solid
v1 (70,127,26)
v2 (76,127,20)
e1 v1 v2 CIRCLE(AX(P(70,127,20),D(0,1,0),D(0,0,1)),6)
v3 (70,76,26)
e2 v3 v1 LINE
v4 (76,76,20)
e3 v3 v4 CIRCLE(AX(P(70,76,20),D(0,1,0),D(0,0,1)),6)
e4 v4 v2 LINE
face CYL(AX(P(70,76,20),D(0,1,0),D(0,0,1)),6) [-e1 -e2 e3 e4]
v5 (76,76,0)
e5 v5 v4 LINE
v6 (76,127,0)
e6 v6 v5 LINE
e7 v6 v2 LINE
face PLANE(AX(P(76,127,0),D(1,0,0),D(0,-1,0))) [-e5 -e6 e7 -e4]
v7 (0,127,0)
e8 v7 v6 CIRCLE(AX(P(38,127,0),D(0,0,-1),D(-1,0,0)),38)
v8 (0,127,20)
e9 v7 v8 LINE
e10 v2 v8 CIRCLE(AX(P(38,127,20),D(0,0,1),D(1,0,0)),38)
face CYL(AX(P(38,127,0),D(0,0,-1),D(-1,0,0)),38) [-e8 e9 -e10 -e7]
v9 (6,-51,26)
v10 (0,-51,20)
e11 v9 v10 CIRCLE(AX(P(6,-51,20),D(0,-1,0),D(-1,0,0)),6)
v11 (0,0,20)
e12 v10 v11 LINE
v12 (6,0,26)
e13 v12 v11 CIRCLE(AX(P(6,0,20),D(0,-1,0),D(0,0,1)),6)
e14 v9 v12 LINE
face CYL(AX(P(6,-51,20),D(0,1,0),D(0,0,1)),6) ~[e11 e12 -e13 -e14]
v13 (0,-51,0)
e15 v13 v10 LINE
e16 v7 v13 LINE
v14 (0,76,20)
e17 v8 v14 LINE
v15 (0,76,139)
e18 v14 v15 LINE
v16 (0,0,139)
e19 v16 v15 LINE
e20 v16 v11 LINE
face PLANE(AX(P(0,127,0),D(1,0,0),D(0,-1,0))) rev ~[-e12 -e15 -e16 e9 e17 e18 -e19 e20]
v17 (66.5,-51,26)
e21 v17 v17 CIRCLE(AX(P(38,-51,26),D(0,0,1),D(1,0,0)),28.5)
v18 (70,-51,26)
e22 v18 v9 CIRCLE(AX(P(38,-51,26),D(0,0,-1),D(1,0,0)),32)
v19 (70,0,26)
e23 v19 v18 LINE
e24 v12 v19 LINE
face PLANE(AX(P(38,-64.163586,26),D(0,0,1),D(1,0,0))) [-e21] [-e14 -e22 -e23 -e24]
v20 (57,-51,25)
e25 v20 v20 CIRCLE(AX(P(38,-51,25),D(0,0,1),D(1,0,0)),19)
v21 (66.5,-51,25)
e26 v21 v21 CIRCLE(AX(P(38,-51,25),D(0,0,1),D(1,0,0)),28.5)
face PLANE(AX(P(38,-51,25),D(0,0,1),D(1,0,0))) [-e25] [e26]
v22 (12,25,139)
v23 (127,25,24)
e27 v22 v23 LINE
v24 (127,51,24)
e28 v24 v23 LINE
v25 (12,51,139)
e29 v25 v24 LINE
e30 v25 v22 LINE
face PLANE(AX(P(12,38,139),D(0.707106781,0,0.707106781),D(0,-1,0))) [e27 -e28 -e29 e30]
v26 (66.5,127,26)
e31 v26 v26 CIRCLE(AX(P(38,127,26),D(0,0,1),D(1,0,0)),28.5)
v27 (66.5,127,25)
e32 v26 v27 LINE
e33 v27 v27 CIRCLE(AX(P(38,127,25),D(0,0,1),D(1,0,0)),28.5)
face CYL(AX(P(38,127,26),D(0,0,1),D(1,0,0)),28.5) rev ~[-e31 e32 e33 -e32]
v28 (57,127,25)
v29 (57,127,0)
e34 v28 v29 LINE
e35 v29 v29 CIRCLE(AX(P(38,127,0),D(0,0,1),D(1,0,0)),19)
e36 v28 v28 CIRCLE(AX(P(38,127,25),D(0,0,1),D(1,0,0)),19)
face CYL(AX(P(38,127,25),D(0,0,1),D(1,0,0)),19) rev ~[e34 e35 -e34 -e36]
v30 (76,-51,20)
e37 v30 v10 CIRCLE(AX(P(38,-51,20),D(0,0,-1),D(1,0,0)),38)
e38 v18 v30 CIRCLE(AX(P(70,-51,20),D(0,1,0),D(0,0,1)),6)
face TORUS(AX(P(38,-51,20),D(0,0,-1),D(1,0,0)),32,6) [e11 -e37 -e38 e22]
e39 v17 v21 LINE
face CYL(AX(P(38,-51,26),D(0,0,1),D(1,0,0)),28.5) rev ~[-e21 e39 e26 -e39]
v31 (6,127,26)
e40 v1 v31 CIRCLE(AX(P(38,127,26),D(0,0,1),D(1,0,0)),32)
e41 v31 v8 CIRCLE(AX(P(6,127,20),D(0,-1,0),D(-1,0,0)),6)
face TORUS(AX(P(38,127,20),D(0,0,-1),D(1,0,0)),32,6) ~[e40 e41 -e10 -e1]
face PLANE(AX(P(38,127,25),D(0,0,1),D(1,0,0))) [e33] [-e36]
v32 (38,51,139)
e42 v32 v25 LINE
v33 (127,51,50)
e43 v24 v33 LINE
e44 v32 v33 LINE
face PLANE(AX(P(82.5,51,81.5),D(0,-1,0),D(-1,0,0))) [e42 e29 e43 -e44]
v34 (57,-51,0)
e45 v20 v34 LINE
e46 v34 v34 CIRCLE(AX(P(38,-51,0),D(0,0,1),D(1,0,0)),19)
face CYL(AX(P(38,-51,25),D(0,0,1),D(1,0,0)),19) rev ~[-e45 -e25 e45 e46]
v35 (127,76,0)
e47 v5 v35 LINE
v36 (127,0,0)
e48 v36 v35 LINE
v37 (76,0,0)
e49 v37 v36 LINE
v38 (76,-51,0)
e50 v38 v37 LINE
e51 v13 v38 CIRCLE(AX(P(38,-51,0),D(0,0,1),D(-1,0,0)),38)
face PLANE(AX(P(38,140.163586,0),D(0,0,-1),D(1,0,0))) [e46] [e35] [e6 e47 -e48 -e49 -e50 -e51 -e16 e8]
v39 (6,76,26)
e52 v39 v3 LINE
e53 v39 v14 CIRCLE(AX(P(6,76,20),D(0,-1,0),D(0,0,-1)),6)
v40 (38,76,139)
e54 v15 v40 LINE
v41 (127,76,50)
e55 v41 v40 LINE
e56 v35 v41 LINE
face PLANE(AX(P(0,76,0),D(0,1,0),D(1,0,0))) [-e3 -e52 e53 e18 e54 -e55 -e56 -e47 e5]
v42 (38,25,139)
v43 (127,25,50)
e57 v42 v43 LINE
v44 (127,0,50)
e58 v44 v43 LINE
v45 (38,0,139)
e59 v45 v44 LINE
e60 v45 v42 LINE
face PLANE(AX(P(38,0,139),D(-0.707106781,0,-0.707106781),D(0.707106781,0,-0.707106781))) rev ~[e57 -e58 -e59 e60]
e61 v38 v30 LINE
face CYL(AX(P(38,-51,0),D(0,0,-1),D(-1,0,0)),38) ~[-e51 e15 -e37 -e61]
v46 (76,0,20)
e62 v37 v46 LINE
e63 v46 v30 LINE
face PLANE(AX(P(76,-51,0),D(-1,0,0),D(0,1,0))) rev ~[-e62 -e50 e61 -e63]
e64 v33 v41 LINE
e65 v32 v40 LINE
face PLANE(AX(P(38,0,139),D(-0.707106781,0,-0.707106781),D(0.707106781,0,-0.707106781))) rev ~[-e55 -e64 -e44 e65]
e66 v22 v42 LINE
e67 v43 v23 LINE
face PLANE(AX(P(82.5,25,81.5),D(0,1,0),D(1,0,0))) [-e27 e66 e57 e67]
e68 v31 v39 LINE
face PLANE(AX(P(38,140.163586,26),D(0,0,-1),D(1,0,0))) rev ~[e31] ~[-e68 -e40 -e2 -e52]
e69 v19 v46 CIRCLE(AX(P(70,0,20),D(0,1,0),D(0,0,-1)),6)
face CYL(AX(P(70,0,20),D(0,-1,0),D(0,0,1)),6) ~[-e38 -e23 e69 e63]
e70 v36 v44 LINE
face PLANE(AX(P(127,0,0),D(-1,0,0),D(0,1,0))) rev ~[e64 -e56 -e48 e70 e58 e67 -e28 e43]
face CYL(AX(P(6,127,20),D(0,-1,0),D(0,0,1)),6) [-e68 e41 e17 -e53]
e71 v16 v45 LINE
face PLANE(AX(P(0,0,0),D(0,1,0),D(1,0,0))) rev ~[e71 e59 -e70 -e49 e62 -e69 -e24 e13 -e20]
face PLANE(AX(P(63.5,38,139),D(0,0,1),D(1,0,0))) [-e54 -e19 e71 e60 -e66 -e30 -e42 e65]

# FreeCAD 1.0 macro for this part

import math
import FreeCAD as App
import Part
import Sketcher
Q = App.Units.Quantity


def edges_at(feature, points):
    """Names of the edges that pass closest to the given points."""
    edges = feature.Shape.Edges
    near = lambda p: min(range(len(edges)), key=lambda i: edges[i].distToShape(Part.Vertex(*p))[0])
    return sorted({f"Edge{near(p) + 1}" for p in points})

doc = App.newDocument("Part")
params = doc.addObject("Spreadsheet::Sheet", "Params")
for row, (alias, value) in enumerate([
    ("sketch1_width", "127 mm"),
    ("sketch1_height", "76 mm"),
    ("pad1_length", "139 mm"),
    ("sketch2_width", "89 mm"),
    ("sketch3_width", "26 mm"),
    ("sketch5_radius", "38 mm"),
    ("sketch5_height", "51 mm"),
    ("pad2_length", "26 mm"),
    ("sketch6_radius", "38 mm"),
    ("sketch6_height", "51 mm"),
    ("pad3_length", "26 mm"),
    ("fillet_radius", "6 mm"),
    ("fillet2_radius", "6 mm"),
    ("sketch7_diameter", "57 mm"),
    ("pocket2_length", "1 mm"),
    ("sketch8_diameter", "38 mm"),
    ("sketch9_diameter", "57 mm"),
    ("pocket4_length", "1 mm"),
    ("sketch10_diameter", "38 mm"),
], start=1):
    params.set(f"A{row}", alias)
    params.set(f"B{row}", "=" + value)
    params.setAlias(f"B{row}", alias)

body = doc.addObject("PartDesign::Body", "Body")

# Sketch on XY plane
sketch1 = body.newObject("Sketcher::SketchObject", "Sketch")
sketch1.AttachmentSupport = (doc.getObject("XY_Plane"), [""])
sketch1.MapMode = "FlatFace"
sketch1.addGeometry([
    Part.LineSegment(App.Vector(0, 76, 0), App.Vector(0, 0, 0)),
    Part.LineSegment(App.Vector(0, 0, 0), App.Vector(127, 0, 0)),
    Part.LineSegment(App.Vector(127, 0, 0), App.Vector(127, 76, 0)),
    Part.LineSegment(App.Vector(127, 76, 0), App.Vector(0, 76, 0)),
], False)
sketch1.addConstraint([
    Sketcher.Constraint("Coincident", 0, 2, 1, 1),
    Sketcher.Constraint("Coincident", 1, 2, 2, 1),
    Sketcher.Constraint("Coincident", 2, 2, 3, 1),
    Sketcher.Constraint("Coincident", 3, 2, 0, 1),
    Sketcher.Constraint("Vertical", 0),
    Sketcher.Constraint("Horizontal", 1),
    Sketcher.Constraint("Vertical", 2),
    Sketcher.Constraint("Horizontal", 3),
    Sketcher.Constraint("Coincident", 0, 2, -1, 1),
    Sketcher.Constraint("DistanceX", 1, 1, 1, 2, Q("127 mm")),
    Sketcher.Constraint("DistanceY", 0, 2, 0, 1, Q("76 mm")),
])
sketch1.setExpression("Constraints[9]", "Params.sketch1_width")
sketch1.setExpression("Constraints[10]", "Params.sketch1_height")
pad1 = body.newObject("PartDesign::Pad", "Pad")
pad1.Profile = sketch1
pad1.setExpression("Length", "Params.pad1_length")

# Sketch on XZ plane
sketch2 = body.newObject("Sketcher::SketchObject", "Sketch001")
sketch2.AttachmentSupport = (doc.getObject("XZ_Plane"), [""])
sketch2.MapMode = "FlatFace"
sketch2.addGeometry([
    Part.LineSegment(App.Vector(127, 139, 0), App.Vector(38, 139, 0)),
    Part.LineSegment(App.Vector(38, 139, 0), App.Vector(127, 50, 0)),
    Part.LineSegment(App.Vector(127, 50, 0), App.Vector(127, 139, 0)),
], False)
sketch2.addConstraint([
    Sketcher.Constraint("Coincident", 0, 2, 1, 1),
    Sketcher.Constraint("Coincident", 1, 2, 2, 1),
    Sketcher.Constraint("Coincident", 2, 2, 0, 1),
    Sketcher.Constraint("Horizontal", 0),
    Sketcher.Constraint("Vertical", 2),
    Sketcher.Constraint("Equal", 0, 2),
    Sketcher.Constraint("DistanceX", 0, 2, 0, 1, Q("89 mm")),
    Sketcher.Constraint("DistanceX", -1, 1, 0, 2, Q("38 mm")),
    Sketcher.Constraint("DistanceY", -1, 1, 0, 2, Q("139 mm")),
])
sketch2.setExpression("Constraints[6]", "Params.sketch2_width")
pocket1 = body.newObject("PartDesign::Pocket", "Pocket")
pocket1.Profile = sketch2
pocket1.Type = "ThroughAll"

# Sketch on XY plane
sketch3 = body.newObject("Sketcher::SketchObject", "Sketch002")
sketch3.AttachmentSupport = (doc.getObject("XY_Plane"), [""])
sketch3.MapMode = "FlatFace"
sketch3.AttachmentOffset = App.Placement(App.Vector(0, 0, 139), App.Rotation())
sketch3.addGeometry([
    Part.LineSegment(App.Vector(12, 51, 0), App.Vector(12, 25, 0)),
    Part.LineSegment(App.Vector(12, 25, 0), App.Vector(38, 25, 0)),
    Part.LineSegment(App.Vector(38, 25, 0), App.Vector(38, 51, 0)),
    Part.LineSegment(App.Vector(38, 51, 0), App.Vector(12, 51, 0)),
], False)
sketch3.addConstraint([
    Sketcher.Constraint("Coincident", 0, 2, 1, 1),
    Sketcher.Constraint("Coincident", 1, 2, 2, 1),
    Sketcher.Constraint("Coincident", 2, 2, 3, 1),
    Sketcher.Constraint("Coincident", 3, 2, 0, 1),
    Sketcher.Constraint("Vertical", 0),
    Sketcher.Constraint("Horizontal", 1),
    Sketcher.Constraint("Vertical", 2),
    Sketcher.Constraint("Horizontal", 3),
    Sketcher.Constraint("Equal", 3, 0),
    Sketcher.Constraint("DistanceX", 1, 1, 1, 2, Q("26 mm")),
    Sketcher.Constraint("DistanceX", -1, 1, 0, 2, Q("12 mm")),
    Sketcher.Constraint("DistanceY", -1, 1, 0, 2, Q("25 mm")),
])
sketch3.setExpression("Constraints[9]", "Params.sketch3_width")

# Sketch on an angled plane
sketch4 = body.newObject("Sketcher::SketchObject", "Sketch003")
sketch4.Placement = App.Placement(App.Vector(75.5, 0, 75.5), App.Rotation(App.Vector(0.707106781, 0, -0.707106781), App.Vector(0, 0.999999999, 0), App.Vector(0.707106781, 0, 0.707106781), "ZXY"))
sketch4.addGeometry(Part.LineSegment(App.Vector(-89.802561, 0, 0), App.Vector(72.831998, 0, 0)), False)
sketch4.addConstraint([
    Sketcher.Constraint("Horizontal", 0),
    Sketcher.Constraint("PointOnObject", 0, 1, -1),
    Sketcher.Constraint("DistanceX", -1, 1, 0, 2, Q("72.831998 mm")),
    Sketcher.Constraint("DistanceX", 0, 1, 0, 2, Q("162.63456 mm")),
])
doc.recompute()

subtractivepipe = body.newObject("PartDesign::SubtractivePipe", "SubtractivePipe")
subtractivepipe.Profile = sketch3
subtractivepipe.Spine = (sketch4, ["Edge1"])

# Sketch on XY plane
sketch5 = body.newObject("Sketcher::SketchObject", "Sketch004")
sketch5.AttachmentSupport = (doc.getObject("XY_Plane"), [""])
sketch5.MapMode = "FlatFace"
sketch5.addGeometry([
    Part.ArcOfCircle(Part.Circle(App.Vector(38, -51, 0), App.Vector(0, 0, 1), 38), math.radians(180), math.radians(360)),
    Part.LineSegment(App.Vector(76, -51, 0), App.Vector(76, 0, 0)),
    Part.LineSegment(App.Vector(76, 0, 0), App.Vector(0, 0, 0)),
    Part.LineSegment(App.Vector(0, 0, 0), App.Vector(0, -51, 0)),
], False)
sketch5.addConstraint([
    Sketcher.Constraint("Tangent", 0, 2, 1, 1),
    Sketcher.Constraint("Coincident", 1, 2, 2, 1),
    Sketcher.Constraint("Coincident", 2, 2, 3, 1),
    Sketcher.Constraint("Tangent", 3, 2, 0, 1),
    Sketcher.Constraint("Vertical", 1),
    Sketcher.Constraint("Horizontal", 2),
    Sketcher.Constraint("Vertical", 3),
    Sketcher.Constraint("Coincident", 2, 2, -1, 1),
    Sketcher.Constraint("Radius", 0, Q("38 mm")),
    Sketcher.Constraint("DistanceY", 1, 1, 1, 2, Q("51 mm")),
])
sketch5.setExpression("Constraints[8]", "Params.sketch5_radius")
sketch5.setExpression("Constraints[9]", "Params.sketch5_height")
pad2 = body.newObject("PartDesign::Pad", "Pad001")
pad2.Profile = sketch5
pad2.setExpression("Length", "Params.pad2_length")

# Sketch on XY plane
sketch6 = body.newObject("Sketcher::SketchObject", "Sketch005")
sketch6.AttachmentSupport = (doc.getObject("XY_Plane"), [""])
sketch6.MapMode = "FlatFace"
sketch6.addGeometry([
    Part.ArcOfCircle(Part.Circle(App.Vector(38, 127, 0), App.Vector(0, 0, 1), 38), math.radians(0), math.radians(180)),
    Part.LineSegment(App.Vector(76, 127, 0), App.Vector(76, 76, 0)),
    Part.LineSegment(App.Vector(76, 76, 0), App.Vector(0, 76, 0)),
    Part.LineSegment(App.Vector(0, 76, 0), App.Vector(0, 127, 0)),
], False)
sketch6.addConstraint([
    Sketcher.Constraint("Tangent", 0, 1, 1, 1),
    Sketcher.Constraint("Coincident", 1, 2, 2, 1),
    Sketcher.Constraint("Coincident", 2, 2, 3, 1),
    Sketcher.Constraint("Tangent", 3, 2, 0, 2),
    Sketcher.Constraint("Vertical", 1),
    Sketcher.Constraint("Horizontal", 2),
    Sketcher.Constraint("Vertical", 3),
    Sketcher.Constraint("PointOnObject", 2, 2, -2),
    Sketcher.Constraint("Radius", 0, Q("38 mm")),
    Sketcher.Constraint("DistanceY", 1, 2, 1, 1, Q("51 mm")),
    Sketcher.Constraint("DistanceY", -1, 1, 0, 3, Q("127 mm")),
])
sketch6.setExpression("Constraints[8]", "Params.sketch6_radius")
sketch6.setExpression("Constraints[9]", "Params.sketch6_height")
pad3 = body.newObject("PartDesign::Pad", "Pad002")
pad3.Profile = sketch6
pad3.setExpression("Length", "Params.pad3_length")
doc.recompute()

fillet = body.newObject("PartDesign::Fillet", "Fillet")
fillet.Base = (pad3, edges_at(pad3, [(0, -25.5, 26)]))
fillet.setExpression("Radius", "Params.fillet_radius")
doc.recompute()

fillet2 = body.newObject("PartDesign::Fillet", "Fillet001")
fillet2.Base = (fillet, edges_at(fillet, [(0, 101.5, 26)]))
fillet2.setExpression("Radius", "Params.fillet2_radius")

# Sketch on XY plane
sketch7 = body.newObject("Sketcher::SketchObject", "Sketch006")
sketch7.AttachmentSupport = (doc.getObject("XY_Plane"), [""])
sketch7.MapMode = "FlatFace"
sketch7.AttachmentOffset = App.Placement(App.Vector(0, 0, 26), App.Rotation())
sketch7.addGeometry(Part.Circle(App.Vector(38, -51, 0), App.Vector(0, 0, 1), 28.5), False)
sketch7.addConstraint([
    Sketcher.Constraint("Diameter", 0, Q("57 mm")),
    Sketcher.Constraint("DistanceX", -1, 1, 0, 3, Q("38 mm")),
    Sketcher.Constraint("DistanceY", 0, 3, -1, 1, Q("51 mm")),
])
sketch7.setExpression("Constraints[0]", "Params.sketch7_diameter")
pocket2 = body.newObject("PartDesign::Pocket", "Pocket001")
pocket2.Profile = sketch7
pocket2.setExpression("Length", "Params.pocket2_length")

# Sketch on XY plane
sketch8 = body.newObject("Sketcher::SketchObject", "Sketch007")
sketch8.AttachmentSupport = (doc.getObject("XY_Plane"), [""])
sketch8.MapMode = "FlatFace"
sketch8.AttachmentOffset = App.Placement(App.Vector(0, 0, 25), App.Rotation())
sketch8.addGeometry(Part.Circle(App.Vector(38, -51, 0), App.Vector(0, 0, 1), 19), False)
sketch8.addConstraint([
    Sketcher.Constraint("Diameter", 0, Q("38 mm")),
    Sketcher.Constraint("DistanceX", -1, 1, 0, 3, Q("38 mm")),
    Sketcher.Constraint("DistanceY", 0, 3, -1, 1, Q("51 mm")),
])
sketch8.setExpression("Constraints[0]", "Params.sketch8_diameter")
pocket3 = body.newObject("PartDesign::Pocket", "Pocket002")
pocket3.Profile = sketch8
pocket3.Type = "ThroughAll"

# Sketch on XY plane
sketch9 = body.newObject("Sketcher::SketchObject", "Sketch008")
sketch9.AttachmentSupport = (doc.getObject("XY_Plane"), [""])
sketch9.MapMode = "FlatFace"
sketch9.AttachmentOffset = App.Placement(App.Vector(0, 0, 26), App.Rotation())
sketch9.addGeometry(Part.Circle(App.Vector(38, 127, 0), App.Vector(0, 0, 1), 28.5), False)
sketch9.addConstraint([
    Sketcher.Constraint("Diameter", 0, Q("57 mm")),
    Sketcher.Constraint("DistanceX", -1, 1, 0, 3, Q("38 mm")),
    Sketcher.Constraint("DistanceY", -1, 1, 0, 3, Q("127 mm")),
])
sketch9.setExpression("Constraints[0]", "Params.sketch9_diameter")
pocket4 = body.newObject("PartDesign::Pocket", "Pocket003")
pocket4.Profile = sketch9
pocket4.setExpression("Length", "Params.pocket4_length")

# Sketch on XY plane
sketch10 = body.newObject("Sketcher::SketchObject", "Sketch009")
sketch10.AttachmentSupport = (doc.getObject("XY_Plane"), [""])
sketch10.MapMode = "FlatFace"
sketch10.AttachmentOffset = App.Placement(App.Vector(0, 0, 25), App.Rotation())
sketch10.addGeometry(Part.Circle(App.Vector(38, 127, 0), App.Vector(0, 0, 1), 19), False)
sketch10.addConstraint([
    Sketcher.Constraint("Diameter", 0, Q("38 mm")),
    Sketcher.Constraint("DistanceX", -1, 1, 0, 3, Q("38 mm")),
    Sketcher.Constraint("DistanceY", -1, 1, 0, 3, Q("127 mm")),
])
sketch10.setExpression("Constraints[0]", "Params.sketch10_diameter")
pocket5 = body.newObject("PartDesign::Pocket", "Pocket004")
pocket5.Profile = sketch10
pocket5.Type = "ThroughAll"

doc.recompute()
